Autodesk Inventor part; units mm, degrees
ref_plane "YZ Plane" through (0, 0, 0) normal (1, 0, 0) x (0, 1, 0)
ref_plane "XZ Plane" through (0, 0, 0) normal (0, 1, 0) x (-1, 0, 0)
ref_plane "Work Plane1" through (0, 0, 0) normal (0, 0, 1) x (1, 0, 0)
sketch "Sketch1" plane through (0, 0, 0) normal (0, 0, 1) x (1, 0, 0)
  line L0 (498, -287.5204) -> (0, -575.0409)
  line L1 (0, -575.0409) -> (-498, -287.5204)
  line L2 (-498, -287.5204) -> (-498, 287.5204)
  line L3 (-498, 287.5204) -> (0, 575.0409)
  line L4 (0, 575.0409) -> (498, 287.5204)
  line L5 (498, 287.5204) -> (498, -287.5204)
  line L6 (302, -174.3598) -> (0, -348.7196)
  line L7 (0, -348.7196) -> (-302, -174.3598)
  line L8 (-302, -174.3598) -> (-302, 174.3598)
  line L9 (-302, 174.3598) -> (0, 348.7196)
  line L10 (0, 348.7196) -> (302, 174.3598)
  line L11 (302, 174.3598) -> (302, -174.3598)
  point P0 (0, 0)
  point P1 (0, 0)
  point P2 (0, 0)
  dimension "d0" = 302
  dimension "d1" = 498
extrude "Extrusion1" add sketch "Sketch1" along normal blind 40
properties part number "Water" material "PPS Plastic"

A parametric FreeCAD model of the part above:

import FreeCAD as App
import Part
import Sketcher
from FreeCAD import Vector
Q = App.Units.Quantity


def add_polygon(sketch, points):
    """Adds a closed chain of lines whose ends are joined by coincident constraints."""
    first, n = sketch.GeometryCount, len(points)
    for a, b in zip(points, points[1:] + points[:1]):
        sketch.addGeometry(Part.LineSegment(App.Vector(*a, 0), App.Vector(*b, 0)), False)
    for i in range(n):
        sketch.addConstraint(Sketcher.Constraint("Coincident", first + i, 2, first + (i + 1) % n, 1))

doc = App.newDocument("Part")
body = doc.addObject("PartDesign::Body", "Body")

sketch1 = body.newObject("Sketcher::SketchObject", "Sketch")
sketch1.AttachmentSupport = (doc.getObject("XY_Plane"), [""])
sketch1.MapMode = "FlatFace"
add_polygon(sketch1, [(0, -575), (498, -288), (498, 288), (0, 575), (-498, 288), (-498, -288)])
add_polygon(sketch1, [(302, 174), (302, -174), (0, -349), (-302, -174), (-302, 174), (0, 349)])
sketch1.addConstraint([
    Sketcher.Constraint("Vertical", 1),
    Sketcher.Constraint("Vertical", 4),
    Sketcher.Constraint("Vertical", 6),
    Sketcher.Constraint("Vertical", 9),
    Sketcher.Constraint("Symmetric", 0, 2, 3, 2, -1, 1),
    Sketcher.Constraint("Symmetric", 2, 2, 5, 2, -1, 1),
    Sketcher.Constraint("Symmetric", 6, 2, 9, 2, -1, 1),
    Sketcher.Constraint("Symmetric", 7, 2, 10, 2, -1, 1),
    Sketcher.Constraint("PointOnObject", 2, 2, -2),
    Sketcher.Constraint("PointOnObject", 7, 2, -2),
    Sketcher.Constraint("Parallel", 2, 5),
    Sketcher.Constraint("Parallel", 3, 7),
    Sketcher.Constraint("Parallel", 5, 8),
    Sketcher.Constraint("Parallel", 8, 11),
    Sketcher.Constraint("Horizontal", 1, 2, 3, 2),
    Sketcher.Constraint("DistanceX", -1, 1, 0, 2, Q("498 mm")),
    Sketcher.Constraint("DistanceX", -1, 1, 6, 2, Q("302 mm")),
    Sketcher.Constraint("Angle", 0, Q("30 deg")),
    Sketcher.Constraint("DistanceY", 7, 2, 1, 2, Q("636.24 mm")),
    Sketcher.Constraint("DistanceY", 1, 1, 1, 2, Q("575.0408 mm")),
])
pad1 = body.newObject("PartDesign::Pad", "Pad")
pad1.Profile = sketch1
pad1.Length = 40

doc.recompute()
